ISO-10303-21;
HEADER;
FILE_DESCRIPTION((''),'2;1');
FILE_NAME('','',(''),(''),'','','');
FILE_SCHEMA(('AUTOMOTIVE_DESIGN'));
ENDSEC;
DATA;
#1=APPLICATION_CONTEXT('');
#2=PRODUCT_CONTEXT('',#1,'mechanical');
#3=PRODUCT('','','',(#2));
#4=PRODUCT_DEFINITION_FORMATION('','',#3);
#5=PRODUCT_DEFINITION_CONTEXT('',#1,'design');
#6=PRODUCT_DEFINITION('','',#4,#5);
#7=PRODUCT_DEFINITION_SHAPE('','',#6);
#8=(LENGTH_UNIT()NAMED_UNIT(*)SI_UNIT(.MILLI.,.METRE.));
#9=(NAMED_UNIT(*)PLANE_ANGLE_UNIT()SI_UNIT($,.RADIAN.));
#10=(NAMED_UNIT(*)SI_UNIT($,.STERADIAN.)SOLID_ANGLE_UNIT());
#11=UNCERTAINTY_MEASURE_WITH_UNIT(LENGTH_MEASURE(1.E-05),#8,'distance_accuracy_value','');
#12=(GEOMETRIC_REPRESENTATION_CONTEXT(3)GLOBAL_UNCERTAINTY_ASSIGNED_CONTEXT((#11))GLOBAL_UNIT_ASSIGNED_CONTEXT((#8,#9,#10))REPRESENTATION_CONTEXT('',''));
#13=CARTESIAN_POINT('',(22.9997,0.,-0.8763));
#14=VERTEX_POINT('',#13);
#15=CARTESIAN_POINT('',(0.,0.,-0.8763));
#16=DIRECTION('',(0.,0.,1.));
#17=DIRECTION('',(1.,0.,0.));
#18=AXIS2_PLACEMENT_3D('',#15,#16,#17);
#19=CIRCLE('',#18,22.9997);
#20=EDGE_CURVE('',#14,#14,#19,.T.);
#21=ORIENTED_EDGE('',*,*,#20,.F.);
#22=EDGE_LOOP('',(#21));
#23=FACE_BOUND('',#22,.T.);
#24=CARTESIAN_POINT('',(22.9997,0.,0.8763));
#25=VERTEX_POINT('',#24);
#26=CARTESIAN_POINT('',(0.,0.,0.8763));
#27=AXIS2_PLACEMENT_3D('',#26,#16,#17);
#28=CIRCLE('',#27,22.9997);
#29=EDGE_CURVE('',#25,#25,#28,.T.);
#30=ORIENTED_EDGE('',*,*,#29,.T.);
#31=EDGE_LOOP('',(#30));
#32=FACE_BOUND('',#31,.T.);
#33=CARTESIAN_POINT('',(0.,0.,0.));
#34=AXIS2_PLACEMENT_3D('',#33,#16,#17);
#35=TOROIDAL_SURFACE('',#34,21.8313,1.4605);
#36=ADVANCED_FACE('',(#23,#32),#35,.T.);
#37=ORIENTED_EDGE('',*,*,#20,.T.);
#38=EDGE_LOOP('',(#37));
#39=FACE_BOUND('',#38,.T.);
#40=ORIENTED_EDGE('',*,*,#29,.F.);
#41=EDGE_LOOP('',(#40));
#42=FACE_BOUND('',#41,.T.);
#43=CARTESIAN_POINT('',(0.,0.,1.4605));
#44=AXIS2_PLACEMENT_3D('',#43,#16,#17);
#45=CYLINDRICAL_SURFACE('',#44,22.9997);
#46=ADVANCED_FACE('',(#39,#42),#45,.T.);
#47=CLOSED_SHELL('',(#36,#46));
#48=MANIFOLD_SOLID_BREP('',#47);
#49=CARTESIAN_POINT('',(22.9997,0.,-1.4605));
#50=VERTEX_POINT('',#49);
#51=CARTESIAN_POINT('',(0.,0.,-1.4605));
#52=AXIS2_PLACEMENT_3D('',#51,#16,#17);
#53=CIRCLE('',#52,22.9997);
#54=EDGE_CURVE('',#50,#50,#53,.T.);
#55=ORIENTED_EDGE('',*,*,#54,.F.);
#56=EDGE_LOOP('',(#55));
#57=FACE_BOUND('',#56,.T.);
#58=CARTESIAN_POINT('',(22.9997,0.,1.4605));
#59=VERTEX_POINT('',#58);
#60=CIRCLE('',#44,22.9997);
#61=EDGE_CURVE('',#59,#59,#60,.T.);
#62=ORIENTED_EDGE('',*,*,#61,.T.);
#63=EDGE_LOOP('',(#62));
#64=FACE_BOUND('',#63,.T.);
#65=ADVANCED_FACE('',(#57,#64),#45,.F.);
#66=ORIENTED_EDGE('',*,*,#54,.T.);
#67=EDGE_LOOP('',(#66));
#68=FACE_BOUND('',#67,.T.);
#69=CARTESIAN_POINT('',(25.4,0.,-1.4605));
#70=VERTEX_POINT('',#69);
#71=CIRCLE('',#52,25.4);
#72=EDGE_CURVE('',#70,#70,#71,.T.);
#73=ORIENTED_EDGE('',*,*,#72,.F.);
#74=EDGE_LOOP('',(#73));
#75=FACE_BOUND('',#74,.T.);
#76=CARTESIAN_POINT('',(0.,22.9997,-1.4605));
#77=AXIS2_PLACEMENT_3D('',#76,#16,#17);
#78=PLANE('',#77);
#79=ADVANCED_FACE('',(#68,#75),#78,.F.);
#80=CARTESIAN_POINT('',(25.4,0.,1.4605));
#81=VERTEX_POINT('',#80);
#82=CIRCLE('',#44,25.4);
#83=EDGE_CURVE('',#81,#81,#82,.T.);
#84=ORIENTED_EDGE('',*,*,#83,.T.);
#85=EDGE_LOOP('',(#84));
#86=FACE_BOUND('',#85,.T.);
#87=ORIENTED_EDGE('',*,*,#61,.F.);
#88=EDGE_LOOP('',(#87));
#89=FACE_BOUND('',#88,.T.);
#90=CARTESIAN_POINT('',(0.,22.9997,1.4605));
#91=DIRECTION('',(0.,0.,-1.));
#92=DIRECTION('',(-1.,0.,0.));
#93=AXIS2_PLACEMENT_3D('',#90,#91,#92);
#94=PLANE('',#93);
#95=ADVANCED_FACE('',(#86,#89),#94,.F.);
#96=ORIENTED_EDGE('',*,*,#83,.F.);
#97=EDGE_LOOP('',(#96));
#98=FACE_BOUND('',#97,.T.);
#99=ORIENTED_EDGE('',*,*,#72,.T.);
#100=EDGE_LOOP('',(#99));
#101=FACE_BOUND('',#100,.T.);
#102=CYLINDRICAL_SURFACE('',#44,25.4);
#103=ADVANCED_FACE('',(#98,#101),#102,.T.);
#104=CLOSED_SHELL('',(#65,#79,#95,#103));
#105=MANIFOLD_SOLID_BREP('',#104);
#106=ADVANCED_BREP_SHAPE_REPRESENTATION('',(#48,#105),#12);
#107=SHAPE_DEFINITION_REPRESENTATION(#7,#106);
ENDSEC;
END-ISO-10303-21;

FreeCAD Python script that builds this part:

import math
import FreeCAD as App
import Part
import Sketcher

V = App.Vector
Q = App.Units.Quantity


def add_polygon(sketch, points):
    """Adds a closed chain of lines whose ends are joined by coincident constraints."""
    first, n = sketch.GeometryCount, len(points)
    for a, b in zip(points, points[1:] + points[:1]):
        sketch.addGeometry(Part.LineSegment(App.Vector(*a, 0), App.Vector(*b, 0)), False)
    for i in range(n):
        sketch.addConstraint(Sketcher.Constraint("Coincident", first + i, 2, first + (i + 1) % n, 1))

doc = App.newDocument("Part")
params = doc.addObject("Spreadsheet::Sheet", "Params")
for row, (alias, value) in enumerate([
    ("sketch1_height", "0.115 in"),
    ("revolution_angle", "360 deg"),
    ("sketch2_height", "0.069 in"),
    ("revolution2_angle", "360 deg"),
], start=1):
    params.set(f"A{row}", alias)
    params.set(f"B{row}", "=" + value)
    params.setAlias(f"B{row}", alias)

body = doc.addObject("PartDesign::Body", "Body")

# Sketch on YZ plane
sketch1 = body.newObject("Sketcher::SketchObject", "Sketch")
sketch1.AttachmentSupport = (doc.getObject("YZ_Plane"), [""])
sketch1.MapMode = "FlatFace"
add_polygon(sketch1, [(25.4, 1.5), (23, 1.5), (23, -1.5), (25.4, -1.5)])  # lines 0-3
sketch1.addConstraint(Sketcher.Constraint("Horizontal", 0))
sketch1.addConstraint(Sketcher.Constraint("Vertical", 1))
sketch1.addConstraint(Sketcher.Constraint("Horizontal", 2))
sketch1.addConstraint(Sketcher.Constraint("Vertical", 3))
sketch1.addConstraint(Sketcher.Constraint("DistanceX", -1, 1, 2, 2, Q("1 in")))
sketch1.addConstraint(Sketcher.Constraint("DistanceY", 1, 2, 1, 1, Q("0.115 in")))
sketch1.addConstraint(Sketcher.Constraint("DistanceX", 0, 2, 0, 1, Q("0.0945 in")))
sketch1.addConstraint(Sketcher.Constraint("DistanceY", -1, 1, 0, 2, Q("0.0575 in")))
sketch1.setExpression("Constraints[9]", "Params.sketch1_height")
revolution = body.newObject("PartDesign::Revolution", "Revolution")
revolution.Profile = sketch1
revolution.ReferenceAxis = (sketch1, ["V_Axis"])
revolution.setExpression("Angle", "Params.revolution_angle")
body2 = doc.addObject("PartDesign::Body", "Body001")

# Sketch on YZ plane
sketch2 = body2.newObject("Sketcher::SketchObject", "Sketch001")
sketch2.AttachmentSupport = (doc.getObject("YZ_Plane001"), [""])
sketch2.MapMode = "FlatFace"
sketch2.addGeometry(Part.LineSegment(V(23, -0.9, 0), V(23, 0.9, 0)), False)
sketch2.addGeometry(Part.ArcOfCircle(Part.Circle(V(21.8, 0, 0), V(0, 0, 1), 1.5), math.radians(37), math.radians(323)), False)
sketch2.addConstraint(Sketcher.Constraint("Coincident", 0, 1, 1, 2))
sketch2.addConstraint(Sketcher.Constraint("Coincident", 1, 1, 0, 2))
sketch2.addConstraint(Sketcher.Constraint("Vertical", 0))
sketch2.addConstraint(Sketcher.Constraint("PointOnObject", 1, 3, -1))
sketch2.addConstraint(Sketcher.Constraint("Radius", 1, Q("0.0575 in")))
sketch2.addConstraint(Sketcher.Constraint("DistanceY", 0, 1, 0, 2, Q("0.069 in")))
sketch2.addConstraint(Sketcher.Constraint("DistanceX", -1, 1, 1, 3, Q("0.8595 in")))
sketch2.setExpression("Constraints[5]", "Params.sketch2_height")
revolution2 = body2.newObject("PartDesign::Revolution", "Revolution001")
revolution2.Profile = sketch2
revolution2.ReferenceAxis = (sketch2, ["V_Axis"])
revolution2.setExpression("Angle", "Params.revolution2_angle")

doc.recompute()
